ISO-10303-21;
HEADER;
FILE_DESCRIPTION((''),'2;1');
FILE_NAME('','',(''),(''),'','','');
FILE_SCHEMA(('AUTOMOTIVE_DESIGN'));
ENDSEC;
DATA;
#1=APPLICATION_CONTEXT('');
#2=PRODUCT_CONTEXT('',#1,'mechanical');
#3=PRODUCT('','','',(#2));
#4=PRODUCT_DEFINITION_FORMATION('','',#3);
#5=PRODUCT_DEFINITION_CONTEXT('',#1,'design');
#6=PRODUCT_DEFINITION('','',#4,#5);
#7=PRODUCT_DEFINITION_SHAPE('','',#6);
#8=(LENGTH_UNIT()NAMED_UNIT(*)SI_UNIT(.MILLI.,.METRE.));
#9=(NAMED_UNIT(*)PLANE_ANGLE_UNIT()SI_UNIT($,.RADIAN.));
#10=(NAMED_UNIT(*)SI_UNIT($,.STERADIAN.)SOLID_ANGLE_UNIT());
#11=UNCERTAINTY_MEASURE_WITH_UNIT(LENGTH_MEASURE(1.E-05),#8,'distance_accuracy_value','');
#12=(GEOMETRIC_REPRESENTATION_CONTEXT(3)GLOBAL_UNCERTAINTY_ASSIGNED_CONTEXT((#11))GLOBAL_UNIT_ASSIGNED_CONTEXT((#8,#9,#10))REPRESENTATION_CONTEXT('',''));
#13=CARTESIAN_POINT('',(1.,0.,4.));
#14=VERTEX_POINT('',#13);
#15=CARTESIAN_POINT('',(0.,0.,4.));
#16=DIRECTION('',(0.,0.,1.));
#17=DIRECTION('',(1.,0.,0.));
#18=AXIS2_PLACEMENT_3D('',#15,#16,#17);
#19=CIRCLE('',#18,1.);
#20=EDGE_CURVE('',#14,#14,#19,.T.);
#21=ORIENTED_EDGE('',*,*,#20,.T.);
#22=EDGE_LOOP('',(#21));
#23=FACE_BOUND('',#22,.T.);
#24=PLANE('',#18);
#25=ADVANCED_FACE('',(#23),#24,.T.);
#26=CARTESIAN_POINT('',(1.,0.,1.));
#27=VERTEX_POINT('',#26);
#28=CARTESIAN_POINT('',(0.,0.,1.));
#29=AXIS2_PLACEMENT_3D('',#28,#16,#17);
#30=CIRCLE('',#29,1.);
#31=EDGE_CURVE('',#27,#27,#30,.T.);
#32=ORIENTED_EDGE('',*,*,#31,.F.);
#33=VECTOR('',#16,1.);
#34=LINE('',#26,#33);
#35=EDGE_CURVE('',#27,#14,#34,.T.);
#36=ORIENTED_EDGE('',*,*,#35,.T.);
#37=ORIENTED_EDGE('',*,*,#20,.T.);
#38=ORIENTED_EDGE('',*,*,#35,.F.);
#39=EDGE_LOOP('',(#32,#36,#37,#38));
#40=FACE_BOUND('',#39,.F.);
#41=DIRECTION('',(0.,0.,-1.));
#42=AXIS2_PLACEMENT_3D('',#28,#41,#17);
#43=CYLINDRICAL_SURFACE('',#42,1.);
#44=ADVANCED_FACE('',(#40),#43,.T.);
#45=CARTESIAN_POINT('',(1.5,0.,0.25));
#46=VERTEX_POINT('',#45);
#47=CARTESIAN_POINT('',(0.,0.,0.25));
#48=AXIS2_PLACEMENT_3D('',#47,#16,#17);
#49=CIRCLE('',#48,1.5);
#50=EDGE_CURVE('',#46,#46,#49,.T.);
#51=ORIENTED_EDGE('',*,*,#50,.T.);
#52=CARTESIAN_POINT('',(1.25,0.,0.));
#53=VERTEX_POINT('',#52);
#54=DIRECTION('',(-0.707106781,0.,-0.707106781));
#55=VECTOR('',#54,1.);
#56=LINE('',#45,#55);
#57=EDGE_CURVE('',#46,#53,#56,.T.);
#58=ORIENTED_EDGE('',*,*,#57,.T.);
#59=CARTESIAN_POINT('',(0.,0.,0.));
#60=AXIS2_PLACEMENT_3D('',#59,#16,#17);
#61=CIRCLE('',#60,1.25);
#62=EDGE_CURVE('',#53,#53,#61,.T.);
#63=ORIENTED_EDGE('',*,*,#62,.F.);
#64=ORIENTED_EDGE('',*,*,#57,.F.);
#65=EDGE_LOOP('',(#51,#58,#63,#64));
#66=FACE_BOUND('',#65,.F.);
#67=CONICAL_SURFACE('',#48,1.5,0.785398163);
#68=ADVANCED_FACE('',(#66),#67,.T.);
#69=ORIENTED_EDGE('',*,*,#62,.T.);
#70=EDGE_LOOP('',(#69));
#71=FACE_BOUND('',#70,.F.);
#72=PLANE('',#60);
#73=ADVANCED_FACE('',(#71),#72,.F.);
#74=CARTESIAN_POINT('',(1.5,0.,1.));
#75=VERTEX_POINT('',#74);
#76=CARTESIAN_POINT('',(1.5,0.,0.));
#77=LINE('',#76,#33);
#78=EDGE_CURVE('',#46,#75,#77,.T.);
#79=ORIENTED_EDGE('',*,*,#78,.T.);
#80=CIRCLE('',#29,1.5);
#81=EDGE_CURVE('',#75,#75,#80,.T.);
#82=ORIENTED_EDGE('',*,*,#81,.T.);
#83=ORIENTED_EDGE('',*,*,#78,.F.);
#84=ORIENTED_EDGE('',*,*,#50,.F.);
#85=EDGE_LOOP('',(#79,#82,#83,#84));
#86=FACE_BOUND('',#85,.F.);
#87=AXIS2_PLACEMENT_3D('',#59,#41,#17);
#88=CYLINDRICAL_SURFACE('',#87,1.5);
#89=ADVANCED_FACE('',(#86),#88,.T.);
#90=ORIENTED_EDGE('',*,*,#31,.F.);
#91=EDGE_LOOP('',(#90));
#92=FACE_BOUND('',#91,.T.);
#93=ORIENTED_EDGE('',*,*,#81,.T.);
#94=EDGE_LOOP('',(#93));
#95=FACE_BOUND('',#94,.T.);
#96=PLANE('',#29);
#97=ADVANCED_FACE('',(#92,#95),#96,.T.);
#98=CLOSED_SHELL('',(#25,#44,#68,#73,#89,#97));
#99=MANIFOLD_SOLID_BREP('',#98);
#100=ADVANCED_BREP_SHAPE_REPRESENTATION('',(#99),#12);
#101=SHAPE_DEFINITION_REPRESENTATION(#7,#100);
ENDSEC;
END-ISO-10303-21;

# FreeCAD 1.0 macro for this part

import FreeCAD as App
import Part
import Sketcher

V = App.Vector
Q = App.Units.Quantity


def edges_at(feature, points):
    """Names of the edges that pass closest to the given points."""
    edges = feature.Shape.Edges
    near = lambda p: min(range(len(edges)), key=lambda i: edges[i].distToShape(Part.Vertex(*p))[0])
    return sorted({f"Edge{near(p) + 1}" for p in points})

doc = App.newDocument("Part")
body = doc.addObject("PartDesign::Body", "Body")

# Sketch on XY plane
sketch1 = body.newObject("Sketcher::SketchObject", "Sketch")
sketch1.AttachmentSupport = (doc.getObject("XY_Plane"), [""])
sketch1.MapMode = "FlatFace"
sketch1.addGeometry(Part.Circle(V(0, 0, 0), V(0, 0, 1), 1.5), False)
sketch1.addConstraint(Sketcher.Constraint("Coincident", 0, 3, -1, 1))
sketch1.addConstraint(Sketcher.Constraint("Diameter", 0, Q("3 mm")))
pad1 = body.newObject("PartDesign::Pad", "Pad")
pad1.Profile = sketch1
pad1.Length = 1

# Sketch on XY plane
sketch2 = body.newObject("Sketcher::SketchObject", "Sketch001")
sketch2.AttachmentSupport = (doc.getObject("XY_Plane"), [""])
sketch2.MapMode = "FlatFace"
sketch2.AttachmentOffset = App.Placement(V(0, 0, 1), App.Rotation())
sketch2.addGeometry(Part.Circle(V(0, 0, 0), V(0, 0, 1), 1), False)
sketch2.addConstraint(Sketcher.Constraint("Coincident", 0, 3, -1, 1))
sketch2.addConstraint(Sketcher.Constraint("Diameter", 0, Q("2 mm")))
pad2 = body.newObject("PartDesign::Pad", "Pad001")
pad2.Profile = sketch2
pad2.Length = 3
doc.recompute()

chamfer = body.newObject("PartDesign::Chamfer", "Chamfer")
chamfer.Base = (pad2, edges_at(pad2, [(-1.5, 0, 0)]))
chamfer.Size = 0.25

doc.recompute()
